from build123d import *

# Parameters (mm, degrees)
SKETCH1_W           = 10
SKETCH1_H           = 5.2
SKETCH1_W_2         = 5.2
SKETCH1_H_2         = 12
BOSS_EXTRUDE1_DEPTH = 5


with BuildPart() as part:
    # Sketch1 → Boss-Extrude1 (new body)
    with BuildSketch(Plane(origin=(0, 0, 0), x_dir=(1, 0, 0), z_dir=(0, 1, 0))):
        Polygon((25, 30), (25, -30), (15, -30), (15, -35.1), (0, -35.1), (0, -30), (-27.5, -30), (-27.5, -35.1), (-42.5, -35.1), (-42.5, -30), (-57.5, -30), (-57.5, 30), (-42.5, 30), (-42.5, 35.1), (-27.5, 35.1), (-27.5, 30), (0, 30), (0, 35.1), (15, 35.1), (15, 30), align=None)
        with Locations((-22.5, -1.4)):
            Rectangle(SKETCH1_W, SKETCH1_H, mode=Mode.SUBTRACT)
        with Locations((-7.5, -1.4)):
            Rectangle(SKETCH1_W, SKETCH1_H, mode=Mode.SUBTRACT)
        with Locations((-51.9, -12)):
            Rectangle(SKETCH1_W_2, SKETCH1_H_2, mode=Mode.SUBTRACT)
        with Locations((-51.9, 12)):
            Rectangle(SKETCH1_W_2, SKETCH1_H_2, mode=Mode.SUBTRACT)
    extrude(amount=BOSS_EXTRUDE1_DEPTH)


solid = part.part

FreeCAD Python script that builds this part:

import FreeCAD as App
import Part
import Sketcher
from FreeCAD import Vector


def add_polygon(sketch, points):
    """Adds a closed chain of lines whose ends are joined by coincident constraints."""
    first, n = sketch.GeometryCount, len(points)
    for a, b in zip(points, points[1:] + points[:1]):
        sketch.addGeometry(Part.LineSegment(App.Vector(*a, 0), App.Vector(*b, 0)), False)
    for i in range(n):
        sketch.addConstraint(Sketcher.Constraint("Coincident", first + i, 2, first + (i + 1) % n, 1))

doc = App.newDocument("Part")
body = doc.addObject("PartDesign::Body", "Body")

# Sketch on XZ plane
sketch1 = body.newObject("Sketcher::SketchObject", "Sketch")
sketch1.AttachmentSupport = (doc.getObject("XZ_Plane"), [""])
sketch1.MapMode = "FlatFace"
add_polygon(sketch1, [(25, 30), (25, -30), (15, -30), (15, -35), (0, -35), (0, -30), (-28, -30), (-28, -35), (-42, -35), (-42, -30), (-58, -30), (-58, 30), (-42, 30), (-42, 35), (-28, 35), (-28, 30), (0, 30), (0, 35), (15, 35), (15, 30)])  # lines 0-19
add_polygon(sketch1, [(-12, 4), (-12, -1), (-2, -1), (-2, 4)])  # lines 20-23
add_polygon(sketch1, [(-28, 4), (-28, -1), (-18, -1), (-18, 4)])  # lines 24-27
add_polygon(sketch1, [(-54, 18), (-54, 6), (-49, 6), (-49, 18)])  # lines 28-31
add_polygon(sketch1, [(-54, -6), (-54, -18), (-49, -18), (-49, -6)])  # lines 32-35
sketch1.addConstraint([
    Sketcher.Constraint("Vertical", 0),
    Sketcher.Constraint("Horizontal", 1),
    Sketcher.Constraint("Vertical", 2),
    Sketcher.Constraint("Horizontal", 3),
    Sketcher.Constraint("Vertical", 4),
    Sketcher.Constraint("Horizontal", 5),
    Sketcher.Constraint("Vertical", 6),
    Sketcher.Constraint("Horizontal", 7),
    Sketcher.Constraint("Vertical", 8),
    Sketcher.Constraint("Horizontal", 9),
    Sketcher.Constraint("Vertical", 10),
    Sketcher.Constraint("Horizontal", 11),
    Sketcher.Constraint("Vertical", 12),
    Sketcher.Constraint("Horizontal", 13),
    Sketcher.Constraint("Vertical", 14),
    Sketcher.Constraint("Horizontal", 15),
    Sketcher.Constraint("Vertical", 16),
    Sketcher.Constraint("Horizontal", 17),
    Sketcher.Constraint("Vertical", 18),
    Sketcher.Constraint("Horizontal", 19),
    Sketcher.Constraint("Vertical", 20),
    Sketcher.Constraint("Horizontal", 21),
    Sketcher.Constraint("Vertical", 22),
    Sketcher.Constraint("Horizontal", 23),
    Sketcher.Constraint("Vertical", 24),
    Sketcher.Constraint("Horizontal", 25),
    Sketcher.Constraint("Vertical", 26),
    Sketcher.Constraint("Horizontal", 27),
    Sketcher.Constraint("Vertical", 28),
    Sketcher.Constraint("Horizontal", 29),
    Sketcher.Constraint("Vertical", 30),
    Sketcher.Constraint("Horizontal", 31),
    Sketcher.Constraint("Vertical", 32),
    Sketcher.Constraint("Horizontal", 33),
    Sketcher.Constraint("Vertical", 34),
    Sketcher.Constraint("Horizontal", 35),
    Sketcher.Constraint("Symmetric", 4, 2, 15, 2, -1, 1),
    Sketcher.Constraint("Symmetric", 8, 2, 11, 2, -1),
    Sketcher.Constraint("Symmetric", 6, 2, 13, 2, -1),
    Sketcher.Constraint("Symmetric", 3, 2, 16, 2, -1),
    Sketcher.Constraint("Symmetric", 1, 2, 18, 2, -1),
    Sketcher.Constraint("Symmetric", 31, 2, 32, 2, -1),
    Sketcher.Constraint("Symmetric", 29, 2, 34, 2, -1),
    Sketcher.Constraint("Horizontal", 1, 2, 4, 2),
    Sketcher.Constraint("Horizontal", 3, 2, 6, 2),
    Sketcher.Constraint("Horizontal", 5, 2, 8, 2),
    Sketcher.Constraint("Horizontal", 21, 2, 24, 2),
    Sketcher.Constraint("Horizontal", 23, 2, 26, 2),
    Sketcher.Constraint("Vertical", 14, 2, 24, 2),
    Sketcher.Constraint("Equal", 3, 7),
    Sketcher.Constraint("Equal", 7, 9),
    Sketcher.Constraint("Equal", 19, 21),
    Sketcher.Constraint("Equal", 23, 25),
    Sketcher.Constraint("Equal", 35, 20),
    Sketcher.Constraint("DistanceX", 1, 2, 1, 1, 10.0),
    Sketcher.Constraint("DistanceX", 3, 2, 3, 1, 15.0),
    Sketcher.Constraint("DistanceY", 0, 2, 0, 1, 60.0),
    Sketcher.Constraint("DistanceY", 28, 2, 28, 1, 12.0),
    Sketcher.Constraint("DistanceX", 5, 2, 5, 1, 27.5),
    Sketcher.Constraint("DistanceX", 29, 1, 29, 2, 5.2),
    Sketcher.Constraint("DistanceY", 2, 2, 2, 1, 5.1),
    Sketcher.Constraint("DistanceY", -1, 1, 22, 2, 4.0),
    Sketcher.Constraint("DistanceY", -1, 1, 28, 2, 6.0),
    Sketcher.Constraint("DistanceX", 5, 2, 20, 2, 15.0),
    Sketcher.Constraint("DistanceX", 10, 2, 28, 2, 3.0),
])
pad1 = body.newObject("PartDesign::Pad", "Pad")
pad1.Profile = sketch1
pad1.Length = 5
pad1.Reversed = True

doc.recompute()
